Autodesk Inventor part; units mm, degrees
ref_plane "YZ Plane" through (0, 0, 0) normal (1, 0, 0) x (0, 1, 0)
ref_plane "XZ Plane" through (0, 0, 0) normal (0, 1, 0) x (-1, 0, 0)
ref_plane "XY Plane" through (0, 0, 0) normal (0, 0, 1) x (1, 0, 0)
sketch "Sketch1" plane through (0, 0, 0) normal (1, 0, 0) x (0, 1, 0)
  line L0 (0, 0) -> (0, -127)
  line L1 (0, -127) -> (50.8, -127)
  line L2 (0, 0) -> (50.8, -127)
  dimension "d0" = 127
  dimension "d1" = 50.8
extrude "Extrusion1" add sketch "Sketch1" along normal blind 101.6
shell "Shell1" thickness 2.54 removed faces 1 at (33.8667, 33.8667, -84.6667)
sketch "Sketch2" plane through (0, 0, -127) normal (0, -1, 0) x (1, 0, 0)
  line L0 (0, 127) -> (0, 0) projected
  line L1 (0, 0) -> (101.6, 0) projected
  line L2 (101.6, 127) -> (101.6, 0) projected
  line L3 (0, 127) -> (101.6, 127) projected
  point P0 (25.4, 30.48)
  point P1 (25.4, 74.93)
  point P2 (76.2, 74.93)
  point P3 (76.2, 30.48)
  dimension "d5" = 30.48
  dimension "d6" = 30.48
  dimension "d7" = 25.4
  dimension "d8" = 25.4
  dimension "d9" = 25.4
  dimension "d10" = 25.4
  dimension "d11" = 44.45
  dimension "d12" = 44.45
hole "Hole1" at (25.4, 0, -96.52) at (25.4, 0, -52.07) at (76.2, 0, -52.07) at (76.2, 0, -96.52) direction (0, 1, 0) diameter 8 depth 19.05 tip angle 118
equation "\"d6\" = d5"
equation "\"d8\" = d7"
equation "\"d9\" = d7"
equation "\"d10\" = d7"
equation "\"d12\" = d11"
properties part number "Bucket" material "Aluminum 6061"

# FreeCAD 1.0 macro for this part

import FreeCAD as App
import Part
import Sketcher

V = App.Vector
Q = App.Units.Quantity


def faces_at(feature, points):
    """Names of the faces that lie closest to the given points."""
    faces = feature.Shape.Faces
    near = lambda p: min(range(len(faces)), key=lambda i: faces[i].distToShape(Part.Vertex(*p))[0])
    return sorted({f"Face{near(p) + 1}" for p in points})


def add_polygon(sketch, points):
    """Adds a closed chain of lines whose ends are joined by coincident constraints."""
    first, n = sketch.GeometryCount, len(points)
    for a, b in zip(points, points[1:] + points[:1]):
        sketch.addGeometry(Part.LineSegment(App.Vector(*a, 0), App.Vector(*b, 0)), False)
    for i in range(n):
        sketch.addConstraint(Sketcher.Constraint("Coincident", first + i, 2, first + (i + 1) % n, 1))

doc = App.newDocument("Part")
params = doc.addObject("Spreadsheet::Sheet", "Params")
for row, (alias, value) in enumerate([
    ("sketch1_width", "2 in"),
    ("sketch1_height", "5 in"),
    ("pad1_length", "4 in"),
    ("thickness_wall", "0.1 in"),
    ("hole_diameter", "8 mm"),
    ("hole_depth", "0.75 in"),
], start=1):
    params.set(f"A{row}", alias)
    params.set(f"B{row}", "=" + value)
    params.setAlias(f"B{row}", alias)

body = doc.addObject("PartDesign::Body", "Body")

sketch1 = body.newObject("Sketcher::SketchObject", "Sketch")
sketch1.AttachmentSupport = (doc.getObject("YZ_Plane"), [""])
sketch1.MapMode = "FlatFace"
add_polygon(sketch1, [(51, -127), (0, 0), (0, -127)])
sketch1.addConstraint(Sketcher.Constraint("Vertical", 1))
sketch1.addConstraint(Sketcher.Constraint("Horizontal", 2))
sketch1.addConstraint(Sketcher.Constraint("Coincident", 0, 2, -1, 1))
sketch1.addConstraint(Sketcher.Constraint("DistanceX", 2, 1, 2, 2, Q("2 in")))
sketch1.addConstraint(Sketcher.Constraint("DistanceY", 1, 2, 1, 1, Q("5 in")))
sketch1.setExpression("Constraints[6]", "Params.sketch1_width")
sketch1.setExpression("Constraints[7]", "Params.sketch1_height")
pad1 = body.newObject("PartDesign::Pad", "Pad")
pad1.Profile = sketch1
pad1.setExpression("Length", "Params.pad1_length")
doc.recompute()

thickness = body.newObject("PartDesign::Thickness", "Thickness")
thickness.Base = (pad1, faces_at(pad1, [(33.867, 33.867, -84.667)]))
thickness.setExpression("Value", "Params.thickness_wall")
thickness.Reversed = True
thickness.Join = "Intersection"

sketch2 = body.newObject("Sketcher::SketchObject", "Sketch001")
sketch2.AttachmentSupport = (doc.getObject("XZ_Plane"), [""])
sketch2.MapMode = "FlatFace"
sketch2.addGeometry(Part.Circle(V(25.4, -96.5, 0), V(0, 0, 1), 4), False)
sketch2.addGeometry(Part.Circle(V(25.4, -52.1, 0), V(0, 0, 1), 4), False)
sketch2.addGeometry(Part.Circle(V(76.2, -52.1, 0), V(0, 0, 1), 4), False)
sketch2.addGeometry(Part.Circle(V(76.2, -96.5, 0), V(0, 0, 1), 4), False)
sketch2.addConstraint(Sketcher.Constraint("Equal", 0, 1))
sketch2.addConstraint(Sketcher.Constraint("Equal", 1, 2))
sketch2.addConstraint(Sketcher.Constraint("Equal", 2, 3))
sketch2.addConstraint(Sketcher.Constraint("Horizontal", 1, 3, 2, 3))
sketch2.addConstraint(Sketcher.Constraint("Horizontal", 0, 3, 3, 3))
sketch2.addConstraint(Sketcher.Constraint("Vertical", 0, 3, 1, 3))
sketch2.addConstraint(Sketcher.Constraint("Vertical", 2, 3, 3, 3))
sketch2.addConstraint(Sketcher.Constraint("DistanceX", -1, 1, 0, 3, Q("1 in")))
sketch2.addConstraint(Sketcher.Constraint("DistanceX", -1, 1, 2, 3, Q("3 in")))
sketch2.addConstraint(Sketcher.Constraint("DistanceY", 0, 3, -1, 1, Q("3.8 in")))
sketch2.addConstraint(Sketcher.Constraint("Diameter", 0, Q("8 mm")))
sketch2.addConstraint(Sketcher.Constraint("DistanceY", 1, 3, -1, 1, Q("2.05 in")))
doc.recompute()
hole = body.newObject("PartDesign::Hole", "Hole")
hole.Profile = sketch2
hole.ThreadType = "None"
hole.setExpression("Diameter", "Params.hole_diameter")
hole.DepthType = "Dimension"
hole.setExpression("Depth", "Params.hole_depth")
hole.DrillPoint = "Angled"
hole.DrillPointAngle = 118

doc.recompute()
